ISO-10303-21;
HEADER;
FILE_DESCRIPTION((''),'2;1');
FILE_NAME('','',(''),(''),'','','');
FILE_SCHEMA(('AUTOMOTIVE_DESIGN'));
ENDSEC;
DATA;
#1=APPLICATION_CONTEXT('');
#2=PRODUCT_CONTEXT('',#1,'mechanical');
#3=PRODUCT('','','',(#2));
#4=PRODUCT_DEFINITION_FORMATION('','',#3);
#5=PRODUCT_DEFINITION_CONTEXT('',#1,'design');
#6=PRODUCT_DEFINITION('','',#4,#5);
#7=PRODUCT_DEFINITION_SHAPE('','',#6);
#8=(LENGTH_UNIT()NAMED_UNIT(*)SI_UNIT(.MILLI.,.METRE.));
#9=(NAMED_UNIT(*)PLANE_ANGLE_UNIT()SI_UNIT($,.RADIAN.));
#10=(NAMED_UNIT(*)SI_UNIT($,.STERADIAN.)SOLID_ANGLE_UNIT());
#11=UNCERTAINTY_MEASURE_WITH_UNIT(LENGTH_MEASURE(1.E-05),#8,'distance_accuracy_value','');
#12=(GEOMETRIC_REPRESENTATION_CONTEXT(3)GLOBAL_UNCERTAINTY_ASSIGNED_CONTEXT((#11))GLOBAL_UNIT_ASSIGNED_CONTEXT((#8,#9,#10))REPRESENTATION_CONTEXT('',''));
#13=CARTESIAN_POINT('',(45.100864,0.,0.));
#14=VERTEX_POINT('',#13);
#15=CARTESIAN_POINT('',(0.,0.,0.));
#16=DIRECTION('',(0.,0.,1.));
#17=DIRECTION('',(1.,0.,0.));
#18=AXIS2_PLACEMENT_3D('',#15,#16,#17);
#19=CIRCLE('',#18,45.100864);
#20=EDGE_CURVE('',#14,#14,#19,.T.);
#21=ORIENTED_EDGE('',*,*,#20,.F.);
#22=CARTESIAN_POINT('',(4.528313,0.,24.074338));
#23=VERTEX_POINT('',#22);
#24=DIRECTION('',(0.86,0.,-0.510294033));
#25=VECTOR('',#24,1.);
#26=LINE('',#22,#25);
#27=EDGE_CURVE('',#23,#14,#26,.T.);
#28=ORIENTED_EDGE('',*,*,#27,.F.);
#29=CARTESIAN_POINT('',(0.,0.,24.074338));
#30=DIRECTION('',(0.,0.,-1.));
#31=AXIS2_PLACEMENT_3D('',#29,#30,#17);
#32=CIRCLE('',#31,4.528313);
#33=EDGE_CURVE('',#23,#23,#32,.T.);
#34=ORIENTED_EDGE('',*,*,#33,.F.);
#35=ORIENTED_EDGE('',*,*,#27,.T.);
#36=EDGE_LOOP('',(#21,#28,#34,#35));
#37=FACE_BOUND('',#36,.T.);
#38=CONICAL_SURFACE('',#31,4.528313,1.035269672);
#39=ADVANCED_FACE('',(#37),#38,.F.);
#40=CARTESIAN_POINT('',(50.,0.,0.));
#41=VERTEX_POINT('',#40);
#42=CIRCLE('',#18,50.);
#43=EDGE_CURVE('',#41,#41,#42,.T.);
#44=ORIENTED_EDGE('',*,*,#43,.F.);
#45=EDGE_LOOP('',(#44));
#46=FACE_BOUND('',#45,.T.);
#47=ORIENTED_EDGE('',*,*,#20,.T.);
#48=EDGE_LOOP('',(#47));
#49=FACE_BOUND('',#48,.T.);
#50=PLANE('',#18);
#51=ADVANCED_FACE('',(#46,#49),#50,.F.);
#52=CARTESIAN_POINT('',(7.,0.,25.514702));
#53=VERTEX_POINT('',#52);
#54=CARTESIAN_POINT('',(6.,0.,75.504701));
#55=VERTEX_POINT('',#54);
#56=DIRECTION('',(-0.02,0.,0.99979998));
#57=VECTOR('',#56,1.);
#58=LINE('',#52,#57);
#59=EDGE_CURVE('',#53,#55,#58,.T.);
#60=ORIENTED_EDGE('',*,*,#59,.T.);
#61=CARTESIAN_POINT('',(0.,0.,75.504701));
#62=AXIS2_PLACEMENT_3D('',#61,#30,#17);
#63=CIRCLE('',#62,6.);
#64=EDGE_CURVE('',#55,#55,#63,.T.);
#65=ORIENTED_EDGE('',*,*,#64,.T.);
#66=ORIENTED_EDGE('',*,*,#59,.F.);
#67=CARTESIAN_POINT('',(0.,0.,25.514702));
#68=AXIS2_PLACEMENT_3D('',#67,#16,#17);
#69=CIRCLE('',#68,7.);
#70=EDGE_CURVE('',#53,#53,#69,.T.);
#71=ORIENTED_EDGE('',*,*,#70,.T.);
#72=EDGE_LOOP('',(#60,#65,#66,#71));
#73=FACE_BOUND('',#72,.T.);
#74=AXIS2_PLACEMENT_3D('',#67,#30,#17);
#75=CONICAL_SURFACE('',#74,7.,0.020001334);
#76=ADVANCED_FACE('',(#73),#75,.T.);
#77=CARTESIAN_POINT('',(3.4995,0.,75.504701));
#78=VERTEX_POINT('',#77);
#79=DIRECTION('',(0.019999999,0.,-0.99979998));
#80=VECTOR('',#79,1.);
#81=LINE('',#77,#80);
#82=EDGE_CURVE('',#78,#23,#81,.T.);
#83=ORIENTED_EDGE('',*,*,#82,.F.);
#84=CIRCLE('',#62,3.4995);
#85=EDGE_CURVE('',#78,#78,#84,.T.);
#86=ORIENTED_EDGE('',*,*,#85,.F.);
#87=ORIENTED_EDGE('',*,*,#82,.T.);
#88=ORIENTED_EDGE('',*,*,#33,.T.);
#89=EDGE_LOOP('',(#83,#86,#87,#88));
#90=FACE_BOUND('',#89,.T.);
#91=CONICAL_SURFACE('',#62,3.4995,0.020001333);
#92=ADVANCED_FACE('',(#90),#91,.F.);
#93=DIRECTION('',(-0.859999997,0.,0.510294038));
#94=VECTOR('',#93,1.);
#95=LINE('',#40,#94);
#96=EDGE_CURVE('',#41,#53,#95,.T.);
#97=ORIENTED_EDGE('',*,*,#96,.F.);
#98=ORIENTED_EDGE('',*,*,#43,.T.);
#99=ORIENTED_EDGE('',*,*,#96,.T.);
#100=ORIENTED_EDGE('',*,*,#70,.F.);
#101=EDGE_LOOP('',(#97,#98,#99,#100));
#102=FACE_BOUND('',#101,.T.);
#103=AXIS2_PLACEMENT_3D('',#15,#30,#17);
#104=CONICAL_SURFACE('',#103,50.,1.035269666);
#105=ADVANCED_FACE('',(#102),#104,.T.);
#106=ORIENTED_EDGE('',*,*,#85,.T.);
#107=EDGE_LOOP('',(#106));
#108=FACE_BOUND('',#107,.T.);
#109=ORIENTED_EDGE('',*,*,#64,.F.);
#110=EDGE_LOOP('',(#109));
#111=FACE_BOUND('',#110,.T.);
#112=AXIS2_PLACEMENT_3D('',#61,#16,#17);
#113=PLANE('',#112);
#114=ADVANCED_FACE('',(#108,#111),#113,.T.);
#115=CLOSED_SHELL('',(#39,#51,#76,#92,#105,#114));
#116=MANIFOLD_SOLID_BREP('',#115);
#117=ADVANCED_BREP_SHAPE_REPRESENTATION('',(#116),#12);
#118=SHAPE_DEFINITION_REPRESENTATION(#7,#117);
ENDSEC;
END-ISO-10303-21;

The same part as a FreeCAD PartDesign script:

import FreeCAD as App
import Part
import Sketcher
Q = App.Units.Quantity


def add_polygon(sketch, points):
    """Adds a closed chain of lines whose ends are joined by coincident constraints."""
    first, n = sketch.GeometryCount, len(points)
    for a, b in zip(points, points[1:] + points[:1]):
        sketch.addGeometry(Part.LineSegment(App.Vector(*a, 0), App.Vector(*b, 0)), False)
    for i in range(n):
        sketch.addConstraint(Sketcher.Constraint("Coincident", first + i, 2, first + (i + 1) % n, 1))

doc = App.newDocument("Part")
body = doc.addObject("PartDesign::Body", "Body")

sketch1 = body.newObject("Sketcher::SketchObject", "Sketch")
sketch1.AttachmentSupport = (doc.getObject("XZ_Plane"), [""])
sketch1.MapMode = "FlatFace"
add_polygon(sketch1, [(-3.4995, 75.504701), (-6, 75.504701), (-7, 25.514702), (-50, 0), (-45.100864, 0), (-4.528313, 24.074338)])
add_polygon(sketch1, [(7, 25.514702), (6, 75.504701), (3.4995, 75.504701), (4.528313, 24.074338), (45.100864, 0), (50, 0)])
sketch1.addConstraint([
    Sketcher.Constraint("Horizontal", 0),
    Sketcher.Constraint("Horizontal", 3),
    Sketcher.Constraint("Horizontal", 7),
    Sketcher.Constraint("Horizontal", 10),
    Sketcher.Constraint("Symmetric", 3, 2, 9, 2, -1, 1),
    Sketcher.Constraint("Symmetric", 0, 2, 6, 2, -2),
    Sketcher.Constraint("Symmetric", 4, 2, 8, 2, -2),
    Sketcher.Constraint("Symmetric", 2, 2, 10, 2, -2),
    Sketcher.Constraint("Symmetric", 1, 2, 11, 2, -2),
    Sketcher.Constraint("Parallel", 2, 4),
    Sketcher.Constraint("Parallel", 1, 5),
    Sketcher.Constraint("Parallel", 6, 8),
    Sketcher.Constraint("Equal", 1, 2),
    Sketcher.Constraint("Distance", 1, Q("50 mm")),
    Sketcher.Constraint("DistanceX", 0, 2, -1, 1, Q("6 mm")),
    Sketcher.Constraint("DistanceX", 1, 2, -1, 1, Q("7 mm")),
    Sketcher.Constraint("DistanceX", 2, 2, -1, 1, Q("50 mm")),
    Sketcher.Constraint("DistanceX", 0, 2, 0, 1, Q("2.5005 mm")),
    Sketcher.Constraint("DistanceX", 3, 1, 3, 2, Q("4.899136 mm")),
])
revolution = body.newObject("PartDesign::Revolution", "Revolution")
revolution.Profile = sketch1
revolution.ReferenceAxis = (sketch1, ["V_Axis"])
revolution.Angle = 360

doc.recompute()
